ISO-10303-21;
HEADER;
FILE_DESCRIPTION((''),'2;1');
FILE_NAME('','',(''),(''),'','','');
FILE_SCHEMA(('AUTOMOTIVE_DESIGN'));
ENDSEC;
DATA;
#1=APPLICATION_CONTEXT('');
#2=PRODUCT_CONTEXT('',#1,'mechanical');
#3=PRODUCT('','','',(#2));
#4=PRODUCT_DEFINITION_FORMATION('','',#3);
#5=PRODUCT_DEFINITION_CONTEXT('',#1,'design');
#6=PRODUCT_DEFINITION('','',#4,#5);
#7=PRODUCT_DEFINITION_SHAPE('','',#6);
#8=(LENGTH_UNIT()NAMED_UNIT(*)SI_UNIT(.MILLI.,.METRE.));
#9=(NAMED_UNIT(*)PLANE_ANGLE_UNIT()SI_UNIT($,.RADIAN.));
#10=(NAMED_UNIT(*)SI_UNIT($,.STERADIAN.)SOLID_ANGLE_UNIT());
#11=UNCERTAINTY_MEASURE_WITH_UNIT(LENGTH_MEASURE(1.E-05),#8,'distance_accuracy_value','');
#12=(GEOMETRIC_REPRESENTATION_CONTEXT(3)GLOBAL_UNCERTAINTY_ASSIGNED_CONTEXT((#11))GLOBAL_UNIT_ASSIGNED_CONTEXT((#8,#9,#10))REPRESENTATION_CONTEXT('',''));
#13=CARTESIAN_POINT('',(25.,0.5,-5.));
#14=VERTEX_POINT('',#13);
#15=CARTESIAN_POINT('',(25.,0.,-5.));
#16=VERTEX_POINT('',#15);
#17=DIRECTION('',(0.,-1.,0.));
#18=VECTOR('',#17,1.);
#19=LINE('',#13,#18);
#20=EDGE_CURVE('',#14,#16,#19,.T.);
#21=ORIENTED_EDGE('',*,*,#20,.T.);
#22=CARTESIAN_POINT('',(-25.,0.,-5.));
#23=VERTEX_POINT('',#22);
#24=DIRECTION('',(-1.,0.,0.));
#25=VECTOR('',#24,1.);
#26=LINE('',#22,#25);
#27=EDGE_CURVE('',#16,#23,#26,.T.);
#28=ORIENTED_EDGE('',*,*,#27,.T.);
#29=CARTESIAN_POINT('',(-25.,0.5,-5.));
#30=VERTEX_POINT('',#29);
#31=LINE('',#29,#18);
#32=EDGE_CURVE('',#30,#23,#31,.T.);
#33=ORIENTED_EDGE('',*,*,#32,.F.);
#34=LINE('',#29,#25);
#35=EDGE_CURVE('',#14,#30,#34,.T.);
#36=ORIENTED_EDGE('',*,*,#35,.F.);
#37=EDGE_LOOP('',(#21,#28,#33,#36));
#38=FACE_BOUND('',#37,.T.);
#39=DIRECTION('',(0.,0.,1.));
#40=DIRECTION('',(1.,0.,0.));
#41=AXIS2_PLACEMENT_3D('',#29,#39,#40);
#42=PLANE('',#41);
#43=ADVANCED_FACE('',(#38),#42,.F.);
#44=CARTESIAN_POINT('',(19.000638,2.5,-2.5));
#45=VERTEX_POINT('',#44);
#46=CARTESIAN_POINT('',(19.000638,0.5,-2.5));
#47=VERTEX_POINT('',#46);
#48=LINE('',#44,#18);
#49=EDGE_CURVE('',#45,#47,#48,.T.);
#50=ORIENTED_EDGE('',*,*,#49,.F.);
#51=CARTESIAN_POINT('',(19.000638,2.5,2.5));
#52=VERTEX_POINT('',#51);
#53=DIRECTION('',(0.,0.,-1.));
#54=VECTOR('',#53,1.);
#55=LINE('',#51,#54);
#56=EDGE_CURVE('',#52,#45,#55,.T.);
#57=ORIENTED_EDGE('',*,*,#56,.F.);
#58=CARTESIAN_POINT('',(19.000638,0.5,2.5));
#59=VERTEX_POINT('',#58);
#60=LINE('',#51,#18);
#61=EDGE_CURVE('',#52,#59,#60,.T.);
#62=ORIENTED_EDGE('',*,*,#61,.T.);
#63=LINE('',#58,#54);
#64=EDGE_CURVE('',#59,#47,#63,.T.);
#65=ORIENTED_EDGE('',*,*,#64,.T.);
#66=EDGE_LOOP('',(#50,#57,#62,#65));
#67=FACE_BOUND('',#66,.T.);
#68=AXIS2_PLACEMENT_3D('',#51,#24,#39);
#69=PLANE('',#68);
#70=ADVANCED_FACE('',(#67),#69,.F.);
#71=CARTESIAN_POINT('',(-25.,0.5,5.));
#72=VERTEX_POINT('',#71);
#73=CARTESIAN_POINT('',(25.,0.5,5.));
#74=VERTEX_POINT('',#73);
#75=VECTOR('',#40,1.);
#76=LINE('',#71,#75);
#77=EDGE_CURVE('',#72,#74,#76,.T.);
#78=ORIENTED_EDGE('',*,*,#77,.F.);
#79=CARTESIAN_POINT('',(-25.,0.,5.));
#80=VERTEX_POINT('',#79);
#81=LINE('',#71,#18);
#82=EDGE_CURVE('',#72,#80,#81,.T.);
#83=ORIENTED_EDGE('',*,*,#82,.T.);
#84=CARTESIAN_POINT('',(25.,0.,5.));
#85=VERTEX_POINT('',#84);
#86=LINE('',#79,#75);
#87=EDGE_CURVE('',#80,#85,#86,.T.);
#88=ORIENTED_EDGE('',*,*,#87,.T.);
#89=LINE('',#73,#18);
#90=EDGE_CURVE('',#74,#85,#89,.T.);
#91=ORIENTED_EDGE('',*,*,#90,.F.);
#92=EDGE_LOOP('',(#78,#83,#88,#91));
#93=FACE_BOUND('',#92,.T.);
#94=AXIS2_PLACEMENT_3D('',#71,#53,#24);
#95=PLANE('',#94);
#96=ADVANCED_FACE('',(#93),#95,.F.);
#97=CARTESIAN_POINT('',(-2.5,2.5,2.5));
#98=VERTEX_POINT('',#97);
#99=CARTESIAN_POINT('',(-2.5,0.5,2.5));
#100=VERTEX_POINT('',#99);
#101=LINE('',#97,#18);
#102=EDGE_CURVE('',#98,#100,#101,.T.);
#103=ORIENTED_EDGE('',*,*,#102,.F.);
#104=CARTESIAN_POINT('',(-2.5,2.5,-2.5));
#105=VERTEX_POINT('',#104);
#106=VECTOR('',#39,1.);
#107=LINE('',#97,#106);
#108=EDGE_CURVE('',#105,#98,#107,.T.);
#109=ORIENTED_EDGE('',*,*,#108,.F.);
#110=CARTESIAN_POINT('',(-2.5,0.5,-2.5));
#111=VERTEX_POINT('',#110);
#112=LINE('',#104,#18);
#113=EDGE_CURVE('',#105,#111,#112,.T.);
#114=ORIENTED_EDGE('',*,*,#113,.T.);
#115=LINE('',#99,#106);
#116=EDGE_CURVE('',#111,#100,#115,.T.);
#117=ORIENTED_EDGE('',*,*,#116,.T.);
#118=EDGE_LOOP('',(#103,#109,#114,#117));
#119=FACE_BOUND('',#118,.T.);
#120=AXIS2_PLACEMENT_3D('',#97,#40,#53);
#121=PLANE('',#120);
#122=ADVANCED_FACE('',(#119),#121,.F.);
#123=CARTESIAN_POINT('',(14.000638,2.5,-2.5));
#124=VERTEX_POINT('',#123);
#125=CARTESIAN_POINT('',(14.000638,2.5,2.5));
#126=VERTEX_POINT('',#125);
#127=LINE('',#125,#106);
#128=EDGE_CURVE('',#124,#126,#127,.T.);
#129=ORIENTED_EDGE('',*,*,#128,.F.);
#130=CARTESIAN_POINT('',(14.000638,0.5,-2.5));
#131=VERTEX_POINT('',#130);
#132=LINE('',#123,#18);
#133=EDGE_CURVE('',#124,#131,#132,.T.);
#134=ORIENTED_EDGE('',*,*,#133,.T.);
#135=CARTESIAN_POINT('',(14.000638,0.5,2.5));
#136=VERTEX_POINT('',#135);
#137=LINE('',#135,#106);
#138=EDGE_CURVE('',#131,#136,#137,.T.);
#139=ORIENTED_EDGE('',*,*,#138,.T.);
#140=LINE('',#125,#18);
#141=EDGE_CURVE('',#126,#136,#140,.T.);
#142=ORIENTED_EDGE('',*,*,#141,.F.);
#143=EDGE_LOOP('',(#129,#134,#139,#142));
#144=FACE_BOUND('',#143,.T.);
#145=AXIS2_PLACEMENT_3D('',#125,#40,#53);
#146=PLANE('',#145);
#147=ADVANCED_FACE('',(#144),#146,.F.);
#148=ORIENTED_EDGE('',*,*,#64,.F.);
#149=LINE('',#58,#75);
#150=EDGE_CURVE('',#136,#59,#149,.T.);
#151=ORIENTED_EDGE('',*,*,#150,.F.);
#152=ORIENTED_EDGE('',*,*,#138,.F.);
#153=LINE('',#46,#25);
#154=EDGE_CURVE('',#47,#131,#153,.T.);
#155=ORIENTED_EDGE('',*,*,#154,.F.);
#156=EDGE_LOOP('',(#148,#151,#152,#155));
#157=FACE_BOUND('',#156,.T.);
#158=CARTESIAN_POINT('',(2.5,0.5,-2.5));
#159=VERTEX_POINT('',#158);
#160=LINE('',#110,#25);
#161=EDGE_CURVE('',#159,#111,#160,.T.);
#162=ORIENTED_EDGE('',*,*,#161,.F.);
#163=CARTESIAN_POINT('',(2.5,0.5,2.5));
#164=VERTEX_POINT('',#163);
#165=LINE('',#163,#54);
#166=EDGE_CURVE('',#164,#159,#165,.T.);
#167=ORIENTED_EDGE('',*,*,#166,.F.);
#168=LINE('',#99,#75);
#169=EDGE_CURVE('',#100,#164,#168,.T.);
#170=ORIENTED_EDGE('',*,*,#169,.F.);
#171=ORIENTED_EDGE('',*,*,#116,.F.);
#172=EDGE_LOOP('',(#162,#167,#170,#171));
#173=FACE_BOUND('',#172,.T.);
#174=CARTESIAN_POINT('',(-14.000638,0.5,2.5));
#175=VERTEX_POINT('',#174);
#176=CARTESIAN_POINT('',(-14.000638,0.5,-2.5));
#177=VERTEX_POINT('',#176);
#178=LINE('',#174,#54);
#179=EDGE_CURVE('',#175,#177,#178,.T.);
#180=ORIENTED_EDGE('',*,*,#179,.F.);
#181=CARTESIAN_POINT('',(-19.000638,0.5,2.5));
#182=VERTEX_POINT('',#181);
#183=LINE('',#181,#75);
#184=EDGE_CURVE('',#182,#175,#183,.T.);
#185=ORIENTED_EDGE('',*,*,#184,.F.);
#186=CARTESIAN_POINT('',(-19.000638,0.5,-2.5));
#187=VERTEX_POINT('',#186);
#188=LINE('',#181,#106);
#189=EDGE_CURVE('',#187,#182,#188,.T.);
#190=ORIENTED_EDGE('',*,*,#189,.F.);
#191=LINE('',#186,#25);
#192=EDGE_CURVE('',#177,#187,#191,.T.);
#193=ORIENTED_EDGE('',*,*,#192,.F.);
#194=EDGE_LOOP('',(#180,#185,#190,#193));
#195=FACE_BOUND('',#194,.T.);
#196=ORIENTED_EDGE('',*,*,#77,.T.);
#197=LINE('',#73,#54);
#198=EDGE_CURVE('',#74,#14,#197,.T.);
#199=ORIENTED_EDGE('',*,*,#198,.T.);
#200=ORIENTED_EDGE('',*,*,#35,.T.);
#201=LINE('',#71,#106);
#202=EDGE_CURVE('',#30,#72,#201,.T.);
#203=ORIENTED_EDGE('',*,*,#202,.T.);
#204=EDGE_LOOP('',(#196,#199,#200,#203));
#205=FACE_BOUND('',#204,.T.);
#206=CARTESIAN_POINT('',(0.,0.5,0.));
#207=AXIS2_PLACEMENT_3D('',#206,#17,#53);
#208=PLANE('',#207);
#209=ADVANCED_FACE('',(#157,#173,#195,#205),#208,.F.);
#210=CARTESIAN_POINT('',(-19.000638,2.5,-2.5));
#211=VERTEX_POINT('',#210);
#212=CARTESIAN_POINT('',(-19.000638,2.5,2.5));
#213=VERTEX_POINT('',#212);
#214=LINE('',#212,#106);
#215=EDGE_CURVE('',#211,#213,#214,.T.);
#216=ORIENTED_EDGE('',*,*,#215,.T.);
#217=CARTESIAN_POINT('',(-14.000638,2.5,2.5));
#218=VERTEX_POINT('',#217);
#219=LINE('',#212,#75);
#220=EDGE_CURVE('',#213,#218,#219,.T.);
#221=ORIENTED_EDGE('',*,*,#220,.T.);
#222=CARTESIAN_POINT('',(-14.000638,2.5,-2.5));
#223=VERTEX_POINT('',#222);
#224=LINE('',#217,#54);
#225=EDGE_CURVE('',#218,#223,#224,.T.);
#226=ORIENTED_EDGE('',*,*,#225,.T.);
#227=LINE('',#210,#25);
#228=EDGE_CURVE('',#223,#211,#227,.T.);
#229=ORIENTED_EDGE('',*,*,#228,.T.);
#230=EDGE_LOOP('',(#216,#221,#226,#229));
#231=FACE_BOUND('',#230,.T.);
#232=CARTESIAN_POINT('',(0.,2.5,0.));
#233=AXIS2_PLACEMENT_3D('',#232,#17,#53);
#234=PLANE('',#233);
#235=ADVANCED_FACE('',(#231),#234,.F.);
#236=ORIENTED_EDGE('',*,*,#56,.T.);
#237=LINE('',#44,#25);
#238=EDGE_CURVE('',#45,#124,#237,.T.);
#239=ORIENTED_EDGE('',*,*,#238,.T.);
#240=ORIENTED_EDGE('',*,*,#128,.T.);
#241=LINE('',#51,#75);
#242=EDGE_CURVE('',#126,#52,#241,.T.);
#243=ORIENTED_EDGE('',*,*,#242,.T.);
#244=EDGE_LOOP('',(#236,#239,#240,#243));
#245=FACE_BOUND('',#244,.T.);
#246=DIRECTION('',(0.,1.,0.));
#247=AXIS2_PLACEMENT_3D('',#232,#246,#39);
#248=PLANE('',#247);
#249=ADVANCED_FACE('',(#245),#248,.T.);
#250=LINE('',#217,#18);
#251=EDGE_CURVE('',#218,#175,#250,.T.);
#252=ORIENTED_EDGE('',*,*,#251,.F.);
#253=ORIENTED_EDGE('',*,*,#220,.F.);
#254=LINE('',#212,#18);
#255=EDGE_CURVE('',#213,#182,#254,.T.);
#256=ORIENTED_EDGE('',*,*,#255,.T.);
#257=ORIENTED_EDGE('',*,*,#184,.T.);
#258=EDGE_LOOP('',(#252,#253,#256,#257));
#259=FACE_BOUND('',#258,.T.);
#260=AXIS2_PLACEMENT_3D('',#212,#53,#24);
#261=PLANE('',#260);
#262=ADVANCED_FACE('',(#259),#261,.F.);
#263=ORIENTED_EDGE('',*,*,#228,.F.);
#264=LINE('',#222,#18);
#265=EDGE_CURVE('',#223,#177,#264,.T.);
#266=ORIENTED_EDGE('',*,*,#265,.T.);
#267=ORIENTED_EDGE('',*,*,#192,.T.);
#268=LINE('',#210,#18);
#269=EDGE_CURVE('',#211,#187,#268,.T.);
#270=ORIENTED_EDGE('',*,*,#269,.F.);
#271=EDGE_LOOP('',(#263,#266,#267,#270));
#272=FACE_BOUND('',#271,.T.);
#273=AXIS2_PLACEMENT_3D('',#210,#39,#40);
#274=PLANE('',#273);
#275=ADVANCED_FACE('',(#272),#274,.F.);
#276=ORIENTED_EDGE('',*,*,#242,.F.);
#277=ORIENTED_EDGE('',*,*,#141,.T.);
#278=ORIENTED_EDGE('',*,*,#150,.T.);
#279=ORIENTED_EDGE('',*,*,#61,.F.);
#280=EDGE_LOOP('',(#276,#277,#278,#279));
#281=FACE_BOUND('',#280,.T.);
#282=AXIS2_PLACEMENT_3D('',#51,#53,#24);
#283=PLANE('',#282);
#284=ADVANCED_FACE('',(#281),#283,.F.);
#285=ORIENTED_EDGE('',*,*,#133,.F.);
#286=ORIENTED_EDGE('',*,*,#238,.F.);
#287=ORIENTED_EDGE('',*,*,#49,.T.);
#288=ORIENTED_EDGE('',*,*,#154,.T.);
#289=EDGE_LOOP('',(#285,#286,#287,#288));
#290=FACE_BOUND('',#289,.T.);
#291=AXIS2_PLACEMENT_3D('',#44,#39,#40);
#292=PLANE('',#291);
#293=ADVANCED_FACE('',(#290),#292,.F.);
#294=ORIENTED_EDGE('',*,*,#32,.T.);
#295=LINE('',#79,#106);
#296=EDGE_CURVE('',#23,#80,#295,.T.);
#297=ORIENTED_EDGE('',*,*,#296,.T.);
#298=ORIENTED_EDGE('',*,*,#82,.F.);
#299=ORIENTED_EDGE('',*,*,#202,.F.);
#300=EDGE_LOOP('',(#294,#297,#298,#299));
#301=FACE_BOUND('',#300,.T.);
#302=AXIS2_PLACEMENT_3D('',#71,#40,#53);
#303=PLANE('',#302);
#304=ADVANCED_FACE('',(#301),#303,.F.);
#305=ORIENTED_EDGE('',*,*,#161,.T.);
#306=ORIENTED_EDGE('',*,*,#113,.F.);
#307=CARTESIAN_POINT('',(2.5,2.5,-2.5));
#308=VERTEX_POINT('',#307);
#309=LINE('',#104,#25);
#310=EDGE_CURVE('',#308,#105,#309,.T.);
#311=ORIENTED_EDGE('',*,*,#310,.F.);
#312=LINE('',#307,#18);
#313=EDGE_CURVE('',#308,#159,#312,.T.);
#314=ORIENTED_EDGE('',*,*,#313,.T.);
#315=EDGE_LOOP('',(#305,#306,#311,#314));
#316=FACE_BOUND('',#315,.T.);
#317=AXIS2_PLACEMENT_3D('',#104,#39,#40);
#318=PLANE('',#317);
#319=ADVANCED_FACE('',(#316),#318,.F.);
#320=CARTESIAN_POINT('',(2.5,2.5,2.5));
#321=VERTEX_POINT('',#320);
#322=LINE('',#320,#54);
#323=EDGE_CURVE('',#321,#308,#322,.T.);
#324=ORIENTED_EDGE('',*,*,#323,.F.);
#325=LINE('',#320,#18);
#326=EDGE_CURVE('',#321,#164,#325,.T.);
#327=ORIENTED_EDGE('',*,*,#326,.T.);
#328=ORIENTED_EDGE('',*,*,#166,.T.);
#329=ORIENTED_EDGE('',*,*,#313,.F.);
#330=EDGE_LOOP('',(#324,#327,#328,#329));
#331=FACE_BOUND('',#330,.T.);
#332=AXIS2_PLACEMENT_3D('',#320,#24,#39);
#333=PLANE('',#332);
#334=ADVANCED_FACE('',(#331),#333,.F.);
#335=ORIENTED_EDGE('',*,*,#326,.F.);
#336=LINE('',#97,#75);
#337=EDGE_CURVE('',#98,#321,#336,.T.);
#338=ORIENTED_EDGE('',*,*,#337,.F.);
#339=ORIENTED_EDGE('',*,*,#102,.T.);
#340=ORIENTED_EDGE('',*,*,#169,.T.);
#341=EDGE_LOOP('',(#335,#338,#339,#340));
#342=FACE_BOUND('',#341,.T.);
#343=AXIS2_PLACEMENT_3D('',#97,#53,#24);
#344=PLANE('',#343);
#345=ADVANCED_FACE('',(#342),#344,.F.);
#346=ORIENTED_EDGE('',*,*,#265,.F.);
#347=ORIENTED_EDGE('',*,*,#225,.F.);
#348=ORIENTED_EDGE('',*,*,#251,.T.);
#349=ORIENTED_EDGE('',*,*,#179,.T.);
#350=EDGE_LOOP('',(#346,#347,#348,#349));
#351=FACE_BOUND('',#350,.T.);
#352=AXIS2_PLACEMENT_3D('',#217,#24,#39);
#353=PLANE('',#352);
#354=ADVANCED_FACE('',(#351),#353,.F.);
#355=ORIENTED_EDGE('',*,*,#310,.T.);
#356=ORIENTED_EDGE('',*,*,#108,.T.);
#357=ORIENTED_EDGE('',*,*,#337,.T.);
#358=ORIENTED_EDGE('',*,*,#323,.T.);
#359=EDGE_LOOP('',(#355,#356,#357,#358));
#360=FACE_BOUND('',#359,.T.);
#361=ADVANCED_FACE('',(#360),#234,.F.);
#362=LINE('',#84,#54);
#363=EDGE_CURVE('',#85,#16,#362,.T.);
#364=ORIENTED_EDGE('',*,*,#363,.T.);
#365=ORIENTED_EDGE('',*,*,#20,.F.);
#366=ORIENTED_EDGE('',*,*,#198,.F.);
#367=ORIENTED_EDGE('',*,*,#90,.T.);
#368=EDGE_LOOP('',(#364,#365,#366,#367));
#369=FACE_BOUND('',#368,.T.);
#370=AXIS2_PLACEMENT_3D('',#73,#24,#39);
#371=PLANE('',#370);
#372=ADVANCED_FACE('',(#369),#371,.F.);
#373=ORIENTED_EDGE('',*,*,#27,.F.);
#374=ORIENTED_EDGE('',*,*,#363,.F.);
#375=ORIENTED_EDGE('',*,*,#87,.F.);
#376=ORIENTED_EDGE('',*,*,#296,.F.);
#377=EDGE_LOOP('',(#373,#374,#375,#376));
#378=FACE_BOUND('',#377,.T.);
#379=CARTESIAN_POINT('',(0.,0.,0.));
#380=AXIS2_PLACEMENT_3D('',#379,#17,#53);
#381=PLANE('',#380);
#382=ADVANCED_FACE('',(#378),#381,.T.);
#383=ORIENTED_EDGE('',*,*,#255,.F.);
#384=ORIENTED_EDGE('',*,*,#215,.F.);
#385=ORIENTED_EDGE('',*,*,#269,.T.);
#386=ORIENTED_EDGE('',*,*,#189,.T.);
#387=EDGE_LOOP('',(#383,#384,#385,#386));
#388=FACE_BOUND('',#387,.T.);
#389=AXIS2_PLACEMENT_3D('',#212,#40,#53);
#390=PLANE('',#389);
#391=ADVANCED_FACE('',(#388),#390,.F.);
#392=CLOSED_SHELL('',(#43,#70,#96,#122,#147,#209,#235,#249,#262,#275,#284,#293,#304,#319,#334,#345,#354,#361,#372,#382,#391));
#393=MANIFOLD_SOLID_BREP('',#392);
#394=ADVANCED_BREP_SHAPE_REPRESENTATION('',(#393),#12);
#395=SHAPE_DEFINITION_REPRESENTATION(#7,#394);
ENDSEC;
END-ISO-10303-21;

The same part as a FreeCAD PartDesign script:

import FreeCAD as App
import Part
import Sketcher
Q = App.Units.Quantity

doc = App.newDocument("Part")
body = doc.addObject("PartDesign::Body", "Body")

sketch1 = doc.addObject("Sketcher::SketchObject", "Sketch")
body.addObject(sketch1)
sketch1.AttachmentSupport = (doc.XZ_Plane, [""])
sketch1.MapMode = "FlatFace"
sketch1.addGeometry([
    Part.LineSegment(App.Vector(-25, -5, 0), App.Vector(-25, 5, 0)),
    Part.LineSegment(App.Vector(-25, 5, 0), App.Vector(25, 5, 0)),
    Part.LineSegment(App.Vector(25, 5, 0), App.Vector(25, -5, 0)),
    Part.LineSegment(App.Vector(25, -5, 0), App.Vector(-25, -5, 0)),
], False)
sketch1.addConstraint([
    Sketcher.Constraint("Coincident", 0, 2, 1, 1),
    Sketcher.Constraint("Coincident", 1, 2, 2, 1),
    Sketcher.Constraint("Coincident", 2, 2, 3, 1),
    Sketcher.Constraint("Coincident", 3, 2, 0, 1),
    Sketcher.Constraint("Vertical", 0),
    Sketcher.Constraint("Horizontal", 1),
    Sketcher.Constraint("Vertical", 2),
    Sketcher.Constraint("Horizontal", 3),
    Sketcher.Constraint("Symmetric", 0, 2, 2, 2, -1, 1),
    Sketcher.Constraint("DistanceX", 1, 1, 1, 2, Q("50 mm")),
    Sketcher.Constraint("DistanceY", 0, 1, 0, 2, Q("10 mm")),
])
pad1 = doc.addObject("PartDesign::Pad", "Pad")
body.addObject(pad1)
pad1.Profile = sketch1
pad1.Length = 0.5
pad1.Reversed = True

sketch2 = doc.addObject("Sketcher::SketchObject", "Sketch001")
body.addObject(sketch2)
sketch2.AttachmentSupport = (doc.XZ_Plane, [""])
sketch2.MapMode = "FlatFace"
sketch2.AttachmentOffset = App.Placement(App.Vector(0, 0, -0.5), App.Rotation())
sketch2.addGeometry([
    Part.LineSegment(App.Vector(-19, -2, 0), App.Vector(-19, 2, 0)),
    Part.LineSegment(App.Vector(-19, 2, 0), App.Vector(-14, 2, 0)),
    Part.LineSegment(App.Vector(-14, 2, 0), App.Vector(-14, -2, 0)),
    Part.LineSegment(App.Vector(-14, -2, 0), App.Vector(-19, -2, 0)),
], False)
sketch2.addConstraint([
    Sketcher.Constraint("Coincident", 0, 2, 1, 1),
    Sketcher.Constraint("Coincident", 1, 2, 2, 1),
    Sketcher.Constraint("Coincident", 2, 2, 3, 1),
    Sketcher.Constraint("Coincident", 3, 2, 0, 1),
    Sketcher.Constraint("Vertical", 0),
    Sketcher.Constraint("Horizontal", 1),
    Sketcher.Constraint("Vertical", 2),
    Sketcher.Constraint("Horizontal", 3),
    Sketcher.Constraint("Equal", 3, 0),
    Sketcher.Constraint("DistanceX", 1, 1, 1, 2, Q("5 mm")),
    Sketcher.Constraint("DistanceY", -1, 1, 0, 2, Q("2.5 mm")),
    Sketcher.Constraint("DistanceX", 0, 2, -1, 1, Q("19.000638 mm")),
])
pad2 = doc.addObject("PartDesign::Pad", "Pad001")
body.addObject(pad2)
pad2.Profile = sketch2
pad2.Length = 2
pad2.Reversed = True

sketch3 = doc.addObject("Sketcher::SketchObject", "Sketch002")
body.addObject(sketch3)
sketch3.AttachmentSupport = (doc.XZ_Plane, [""])
sketch3.MapMode = "FlatFace"
sketch3.AttachmentOffset = App.Placement(App.Vector(0, 0, -0.5), App.Rotation())
sketch3.addGeometry([
    Part.LineSegment(App.Vector(-2, -2, 0), App.Vector(-2, 2, 0)),
    Part.LineSegment(App.Vector(-2, 2, 0), App.Vector(2, 2, 0)),
    Part.LineSegment(App.Vector(2, 2, 0), App.Vector(2, -2, 0)),
    Part.LineSegment(App.Vector(2, -2, 0), App.Vector(-2, -2, 0)),
], False)
sketch3.addConstraint([
    Sketcher.Constraint("Coincident", 0, 2, 1, 1),
    Sketcher.Constraint("Coincident", 1, 2, 2, 1),
    Sketcher.Constraint("Coincident", 2, 2, 3, 1),
    Sketcher.Constraint("Coincident", 3, 2, 0, 1),
    Sketcher.Constraint("Vertical", 0),
    Sketcher.Constraint("Horizontal", 1),
    Sketcher.Constraint("Vertical", 2),
    Sketcher.Constraint("Horizontal", 3),
    Sketcher.Constraint("Symmetric", 0, 2, 2, 2, -1, 1),
    Sketcher.Constraint("Equal", 3, 0),
    Sketcher.Constraint("DistanceX", 1, 1, 1, 2, Q("5 mm")),
])
pad3 = doc.addObject("PartDesign::Pad", "Pad002")
body.addObject(pad3)
pad3.Profile = sketch3
pad3.Length = 2
pad3.Reversed = True

sketch4 = doc.addObject("Sketcher::SketchObject", "Sketch003")
body.addObject(sketch4)
sketch4.AttachmentSupport = (doc.XZ_Plane, [""])
sketch4.MapMode = "FlatFace"
sketch4.AttachmentOffset = App.Placement(App.Vector(0, 0, -0.5), App.Rotation())
sketch4.addGeometry([
    Part.LineSegment(App.Vector(14, -2, 0), App.Vector(14, 2, 0)),
    Part.LineSegment(App.Vector(14, 2, 0), App.Vector(19, 2, 0)),
    Part.LineSegment(App.Vector(19, 2, 0), App.Vector(19, -2, 0)),
    Part.LineSegment(App.Vector(19, -2, 0), App.Vector(14, -2, 0)),
], False)
sketch4.addConstraint([
    Sketcher.Constraint("Coincident", 0, 2, 1, 1),
    Sketcher.Constraint("Coincident", 1, 2, 2, 1),
    Sketcher.Constraint("Coincident", 2, 2, 3, 1),
    Sketcher.Constraint("Coincident", 3, 2, 0, 1),
    Sketcher.Constraint("Vertical", 0),
    Sketcher.Constraint("Horizontal", 1),
    Sketcher.Constraint("Vertical", 2),
    Sketcher.Constraint("Horizontal", 3),
    Sketcher.Constraint("Equal", 3, 0),
    Sketcher.Constraint("DistanceX", 1, 1, 1, 2, Q("5 mm")),
    Sketcher.Constraint("DistanceY", -1, 1, 0, 2, Q("2.5 mm")),
    Sketcher.Constraint("DistanceX", -1, 1, 0, 2, Q("14.000638 mm")),
])
pad4 = doc.addObject("PartDesign::Pad", "Pad003")
body.addObject(pad4)
pad4.Profile = sketch4
pad4.Length = 2
pad4.Reversed = True

doc.recompute()
